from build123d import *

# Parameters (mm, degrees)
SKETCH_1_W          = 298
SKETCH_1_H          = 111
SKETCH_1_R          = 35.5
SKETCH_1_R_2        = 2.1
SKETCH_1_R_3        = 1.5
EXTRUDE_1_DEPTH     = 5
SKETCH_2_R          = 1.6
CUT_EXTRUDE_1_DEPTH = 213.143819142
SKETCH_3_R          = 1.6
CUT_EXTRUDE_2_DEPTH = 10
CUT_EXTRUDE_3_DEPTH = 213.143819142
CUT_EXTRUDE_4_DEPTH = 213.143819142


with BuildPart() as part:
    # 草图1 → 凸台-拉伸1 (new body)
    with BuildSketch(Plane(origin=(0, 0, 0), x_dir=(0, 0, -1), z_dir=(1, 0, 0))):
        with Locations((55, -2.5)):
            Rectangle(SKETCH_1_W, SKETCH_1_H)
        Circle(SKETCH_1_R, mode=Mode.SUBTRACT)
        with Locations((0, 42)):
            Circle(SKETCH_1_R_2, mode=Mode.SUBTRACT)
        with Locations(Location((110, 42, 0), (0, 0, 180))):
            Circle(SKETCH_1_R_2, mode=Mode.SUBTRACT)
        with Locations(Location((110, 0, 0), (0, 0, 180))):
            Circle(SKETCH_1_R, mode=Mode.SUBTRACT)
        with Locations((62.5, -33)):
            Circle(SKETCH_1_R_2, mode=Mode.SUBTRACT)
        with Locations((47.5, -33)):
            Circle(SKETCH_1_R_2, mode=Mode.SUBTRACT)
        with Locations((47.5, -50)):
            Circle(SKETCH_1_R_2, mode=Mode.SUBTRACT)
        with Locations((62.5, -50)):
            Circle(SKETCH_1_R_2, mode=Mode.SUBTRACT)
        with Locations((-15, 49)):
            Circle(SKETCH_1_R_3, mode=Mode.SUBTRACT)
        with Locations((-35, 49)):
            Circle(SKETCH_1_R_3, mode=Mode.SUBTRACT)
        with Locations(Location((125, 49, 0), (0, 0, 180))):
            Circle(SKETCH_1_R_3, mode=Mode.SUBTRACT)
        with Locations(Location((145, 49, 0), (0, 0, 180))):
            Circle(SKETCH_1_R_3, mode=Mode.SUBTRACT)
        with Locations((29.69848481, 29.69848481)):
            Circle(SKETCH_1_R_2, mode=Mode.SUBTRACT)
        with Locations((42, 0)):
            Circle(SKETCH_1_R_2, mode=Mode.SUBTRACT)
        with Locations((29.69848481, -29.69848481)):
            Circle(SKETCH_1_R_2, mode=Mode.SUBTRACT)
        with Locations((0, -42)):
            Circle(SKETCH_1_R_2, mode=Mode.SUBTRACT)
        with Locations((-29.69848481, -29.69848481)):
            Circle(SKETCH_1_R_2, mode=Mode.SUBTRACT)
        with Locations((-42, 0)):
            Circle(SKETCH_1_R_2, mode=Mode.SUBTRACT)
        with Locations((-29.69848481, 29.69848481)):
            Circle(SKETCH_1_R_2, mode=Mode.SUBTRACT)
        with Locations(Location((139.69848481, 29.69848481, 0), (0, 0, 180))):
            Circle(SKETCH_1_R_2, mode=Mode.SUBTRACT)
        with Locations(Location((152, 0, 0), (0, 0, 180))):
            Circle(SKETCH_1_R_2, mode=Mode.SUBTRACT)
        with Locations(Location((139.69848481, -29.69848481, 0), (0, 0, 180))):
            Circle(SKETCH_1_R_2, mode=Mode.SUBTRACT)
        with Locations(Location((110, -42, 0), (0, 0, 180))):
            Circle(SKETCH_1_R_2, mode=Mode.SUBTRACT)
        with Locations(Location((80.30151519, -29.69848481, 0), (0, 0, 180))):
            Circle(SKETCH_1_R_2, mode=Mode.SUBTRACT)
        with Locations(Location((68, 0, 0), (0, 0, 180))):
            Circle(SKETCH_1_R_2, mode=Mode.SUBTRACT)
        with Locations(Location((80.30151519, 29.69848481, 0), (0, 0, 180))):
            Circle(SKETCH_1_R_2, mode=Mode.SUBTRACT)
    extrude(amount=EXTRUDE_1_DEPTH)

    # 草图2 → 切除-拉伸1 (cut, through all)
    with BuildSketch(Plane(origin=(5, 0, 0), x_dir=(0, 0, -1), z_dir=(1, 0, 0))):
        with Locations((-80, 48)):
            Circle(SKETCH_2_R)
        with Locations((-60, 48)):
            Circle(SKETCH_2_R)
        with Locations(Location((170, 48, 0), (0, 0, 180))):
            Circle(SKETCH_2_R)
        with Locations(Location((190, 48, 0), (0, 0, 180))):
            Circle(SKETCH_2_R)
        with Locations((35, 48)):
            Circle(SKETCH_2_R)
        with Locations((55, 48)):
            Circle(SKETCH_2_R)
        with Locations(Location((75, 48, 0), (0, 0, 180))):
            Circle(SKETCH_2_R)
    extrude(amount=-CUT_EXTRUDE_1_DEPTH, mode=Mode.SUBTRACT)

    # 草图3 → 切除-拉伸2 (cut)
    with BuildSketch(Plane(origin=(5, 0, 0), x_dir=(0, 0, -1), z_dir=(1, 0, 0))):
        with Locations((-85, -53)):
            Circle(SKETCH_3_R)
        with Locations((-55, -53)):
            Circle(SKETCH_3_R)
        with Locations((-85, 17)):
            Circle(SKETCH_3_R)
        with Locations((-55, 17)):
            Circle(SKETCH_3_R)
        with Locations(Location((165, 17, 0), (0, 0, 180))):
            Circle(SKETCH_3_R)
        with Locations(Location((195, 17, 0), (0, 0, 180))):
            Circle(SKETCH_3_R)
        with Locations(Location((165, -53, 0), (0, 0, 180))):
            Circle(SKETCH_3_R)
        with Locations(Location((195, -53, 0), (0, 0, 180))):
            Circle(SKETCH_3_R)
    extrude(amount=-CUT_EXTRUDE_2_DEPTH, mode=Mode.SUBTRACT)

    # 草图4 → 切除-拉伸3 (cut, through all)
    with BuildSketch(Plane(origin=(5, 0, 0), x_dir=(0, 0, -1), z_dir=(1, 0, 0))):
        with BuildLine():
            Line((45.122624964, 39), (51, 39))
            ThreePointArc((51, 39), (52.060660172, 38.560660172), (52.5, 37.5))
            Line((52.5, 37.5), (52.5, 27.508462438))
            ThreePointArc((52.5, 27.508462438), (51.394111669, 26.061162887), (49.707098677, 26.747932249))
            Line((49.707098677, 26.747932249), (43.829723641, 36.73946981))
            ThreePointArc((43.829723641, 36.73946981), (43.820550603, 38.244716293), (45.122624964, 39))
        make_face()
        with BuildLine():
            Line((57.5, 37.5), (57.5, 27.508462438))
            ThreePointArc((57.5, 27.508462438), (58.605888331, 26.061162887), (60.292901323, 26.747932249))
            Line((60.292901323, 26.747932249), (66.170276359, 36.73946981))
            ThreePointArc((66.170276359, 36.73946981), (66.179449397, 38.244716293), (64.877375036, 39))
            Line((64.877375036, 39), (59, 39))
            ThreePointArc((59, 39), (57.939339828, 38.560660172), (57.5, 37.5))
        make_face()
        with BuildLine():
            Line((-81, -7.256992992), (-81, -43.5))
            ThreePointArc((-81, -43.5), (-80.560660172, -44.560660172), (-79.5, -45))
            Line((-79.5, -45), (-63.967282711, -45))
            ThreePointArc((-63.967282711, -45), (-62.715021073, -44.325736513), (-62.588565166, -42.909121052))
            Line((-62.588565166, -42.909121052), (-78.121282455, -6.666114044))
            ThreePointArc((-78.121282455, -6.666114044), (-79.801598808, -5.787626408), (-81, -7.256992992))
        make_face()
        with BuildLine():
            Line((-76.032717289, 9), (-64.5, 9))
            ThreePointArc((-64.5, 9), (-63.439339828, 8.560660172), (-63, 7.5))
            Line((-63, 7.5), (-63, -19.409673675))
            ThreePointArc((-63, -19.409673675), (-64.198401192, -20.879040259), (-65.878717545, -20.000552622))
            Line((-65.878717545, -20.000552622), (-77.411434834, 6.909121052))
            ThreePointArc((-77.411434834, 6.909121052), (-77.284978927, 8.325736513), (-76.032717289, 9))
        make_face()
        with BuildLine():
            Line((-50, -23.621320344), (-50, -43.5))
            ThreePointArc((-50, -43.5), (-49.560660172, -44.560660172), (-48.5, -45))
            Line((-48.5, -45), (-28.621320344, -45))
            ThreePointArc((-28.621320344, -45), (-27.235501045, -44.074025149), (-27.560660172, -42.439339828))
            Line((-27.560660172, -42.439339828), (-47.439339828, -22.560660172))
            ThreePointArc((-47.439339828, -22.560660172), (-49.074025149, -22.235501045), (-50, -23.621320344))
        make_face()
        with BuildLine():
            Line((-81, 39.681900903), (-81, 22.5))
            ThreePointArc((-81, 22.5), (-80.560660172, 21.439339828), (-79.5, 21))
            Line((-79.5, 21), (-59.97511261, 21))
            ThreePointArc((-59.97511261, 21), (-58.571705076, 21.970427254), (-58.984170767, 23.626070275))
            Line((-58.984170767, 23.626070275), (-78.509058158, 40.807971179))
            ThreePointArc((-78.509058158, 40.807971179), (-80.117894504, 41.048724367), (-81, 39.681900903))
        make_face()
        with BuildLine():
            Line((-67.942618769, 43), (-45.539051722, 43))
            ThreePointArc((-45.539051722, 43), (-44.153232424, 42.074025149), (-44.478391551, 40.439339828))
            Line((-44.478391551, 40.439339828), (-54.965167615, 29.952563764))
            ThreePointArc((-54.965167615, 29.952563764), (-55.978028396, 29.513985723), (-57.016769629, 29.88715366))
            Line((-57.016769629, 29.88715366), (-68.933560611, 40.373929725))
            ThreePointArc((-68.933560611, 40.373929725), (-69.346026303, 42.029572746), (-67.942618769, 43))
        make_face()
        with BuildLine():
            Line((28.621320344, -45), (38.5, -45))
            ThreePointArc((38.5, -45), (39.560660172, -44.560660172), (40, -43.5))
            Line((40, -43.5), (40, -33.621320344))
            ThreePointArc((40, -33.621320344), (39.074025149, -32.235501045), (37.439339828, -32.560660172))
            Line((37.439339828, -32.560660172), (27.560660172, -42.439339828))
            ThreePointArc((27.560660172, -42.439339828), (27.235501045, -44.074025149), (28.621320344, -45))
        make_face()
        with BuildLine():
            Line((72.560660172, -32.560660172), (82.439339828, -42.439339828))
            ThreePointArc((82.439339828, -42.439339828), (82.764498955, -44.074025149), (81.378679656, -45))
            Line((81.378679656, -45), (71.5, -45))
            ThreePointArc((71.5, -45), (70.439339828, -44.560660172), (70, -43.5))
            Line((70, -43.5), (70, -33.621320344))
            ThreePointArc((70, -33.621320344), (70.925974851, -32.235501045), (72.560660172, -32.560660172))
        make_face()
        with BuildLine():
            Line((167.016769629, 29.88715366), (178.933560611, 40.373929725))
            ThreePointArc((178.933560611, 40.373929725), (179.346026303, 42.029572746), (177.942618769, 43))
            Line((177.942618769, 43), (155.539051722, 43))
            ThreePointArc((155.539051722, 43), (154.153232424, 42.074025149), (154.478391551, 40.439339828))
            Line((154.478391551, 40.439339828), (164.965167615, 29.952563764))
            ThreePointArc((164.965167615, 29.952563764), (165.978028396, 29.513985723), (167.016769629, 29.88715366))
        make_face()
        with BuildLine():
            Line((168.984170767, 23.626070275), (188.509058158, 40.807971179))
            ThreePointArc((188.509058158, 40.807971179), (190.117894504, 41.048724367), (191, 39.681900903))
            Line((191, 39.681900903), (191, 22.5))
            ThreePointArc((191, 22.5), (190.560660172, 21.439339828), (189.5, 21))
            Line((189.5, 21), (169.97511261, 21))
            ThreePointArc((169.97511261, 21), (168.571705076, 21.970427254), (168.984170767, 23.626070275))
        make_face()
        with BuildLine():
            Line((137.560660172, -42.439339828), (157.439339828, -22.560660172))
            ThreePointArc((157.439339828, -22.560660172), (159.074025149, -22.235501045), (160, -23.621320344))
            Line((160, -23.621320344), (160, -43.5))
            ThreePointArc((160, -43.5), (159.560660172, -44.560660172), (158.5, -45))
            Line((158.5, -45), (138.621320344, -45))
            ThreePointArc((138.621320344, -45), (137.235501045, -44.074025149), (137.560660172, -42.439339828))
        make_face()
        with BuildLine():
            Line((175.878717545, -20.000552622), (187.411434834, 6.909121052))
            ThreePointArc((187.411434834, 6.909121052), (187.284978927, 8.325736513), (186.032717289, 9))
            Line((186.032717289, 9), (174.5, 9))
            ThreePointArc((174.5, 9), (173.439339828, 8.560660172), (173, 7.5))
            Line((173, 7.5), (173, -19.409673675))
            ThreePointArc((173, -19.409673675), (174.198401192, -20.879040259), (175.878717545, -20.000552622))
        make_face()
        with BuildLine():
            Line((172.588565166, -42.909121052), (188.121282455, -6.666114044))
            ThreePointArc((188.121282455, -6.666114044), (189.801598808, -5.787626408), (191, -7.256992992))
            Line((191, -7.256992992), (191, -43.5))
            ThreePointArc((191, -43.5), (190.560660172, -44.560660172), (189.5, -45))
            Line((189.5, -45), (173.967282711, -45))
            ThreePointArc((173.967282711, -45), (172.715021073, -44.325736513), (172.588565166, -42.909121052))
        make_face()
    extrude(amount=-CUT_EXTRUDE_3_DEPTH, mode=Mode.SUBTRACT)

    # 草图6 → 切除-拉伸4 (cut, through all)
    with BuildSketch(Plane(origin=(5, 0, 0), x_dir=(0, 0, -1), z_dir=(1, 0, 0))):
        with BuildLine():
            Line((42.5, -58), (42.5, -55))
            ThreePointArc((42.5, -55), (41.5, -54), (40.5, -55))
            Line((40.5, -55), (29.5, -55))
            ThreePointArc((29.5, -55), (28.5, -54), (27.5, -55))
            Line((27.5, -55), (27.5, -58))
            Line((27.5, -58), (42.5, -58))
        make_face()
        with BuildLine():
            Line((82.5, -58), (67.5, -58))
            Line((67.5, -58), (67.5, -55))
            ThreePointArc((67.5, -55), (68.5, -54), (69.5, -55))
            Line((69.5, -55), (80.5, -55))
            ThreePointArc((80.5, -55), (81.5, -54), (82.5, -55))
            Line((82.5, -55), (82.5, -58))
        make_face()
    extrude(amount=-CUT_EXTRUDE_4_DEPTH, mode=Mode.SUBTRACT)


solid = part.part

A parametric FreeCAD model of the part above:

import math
import FreeCAD as App
import Part
import Sketcher

V = App.Vector
Q = App.Units.Quantity

doc = App.newDocument("Part")
body = doc.addObject("PartDesign::Body", "Body")

# Sketch on YZ plane
sketch1 = body.newObject("Sketcher::SketchObject", "Sketch")
sketch1.AttachmentSupport = (doc.getObject("YZ_Plane"), [""])
sketch1.MapMode = "FlatFace"
sketch1.addGeometry([
    Part.LineSegment(V(53, 94, 0), V(-58, 94, 0)),  # 0
    Part.LineSegment(V(-58, 94, 0), V(-58, -204, 0)),  # 1
    Part.LineSegment(V(-58, -204, 0), V(53, -204, 0)),  # 2
    Part.LineSegment(V(53, -204, 0), V(53, 94, 0)),  # 3
    Part.Circle(V(-42, 0, 0), V(0, 0, 1), 2.1),  # 4
    Part.Circle(V(-29.7, 29.7, 0), V(0, 0, 1), 2.1),  # 5
    Part.Circle(V(-50, -47.5, 0), V(0, 0, 1), 2.1),  # 6
    Part.Circle(V(-29.7, -29.7, 0), V(0, 0, 1), 2.1),  # 7
    Part.Circle(V(-33, -47.5, 0), V(0, 0, 1), 2.1),  # 8
    Part.Circle(V(-50, -62.5, 0), V(0, 0, 1), 2.1),  # 9
    Part.Circle(V(-33, -62.5, 0), V(0, 0, 1), 2.1),  # 10
    Part.Circle(V(-29.7, -80.3, 0), V(0, 0, 1), 2.1),  # 11
    Part.Circle(V(-42, -110, 0), V(0, 0, 1), 2.1),  # 12
    Part.Circle(V(-29.7, -139.7, 0), V(0, 0, 1), 2.1),  # 13
    Part.Circle(V(0, 42, 0), V(0, 0, 1), 2.1),  # 14
    Part.Circle(V(0, 0, 0), V(0, 0, 1), 35.5),  # 15
    Part.Circle(V(0, -42, 0), V(0, 0, 1), 2.1),  # 16
    Part.Circle(V(29.7, 29.7, 0), V(0, 0, 1), 2.1),  # 17
    Part.Circle(V(49, 35, 0), V(0, 0, 1), 1.5),  # 18
    Part.Circle(V(42, 0, 0), V(0, 0, 1), 2.1),  # 19
    Part.Circle(V(49, 15, 0), V(0, 0, 1), 1.5),  # 20
    Part.Circle(V(29.7, -29.7, 0), V(0, 0, 1), 2.1),  # 21
    Part.Circle(V(0, -68, 0), V(0, 0, 1), 2.1),  # 22
    Part.Circle(V(0, -110, 0), V(0, 0, 1), 35.5),  # 23
    Part.Circle(V(0, -152, 0), V(0, 0, 1), 2.1),  # 24
    Part.Circle(V(29.7, -80.3, 0), V(0, 0, 1), 2.1),  # 25
    Part.Circle(V(29.7, -139.7, 0), V(0, 0, 1), 2.1),  # 26
    Part.Circle(V(42, -110, 0), V(0, 0, 1), 2.1),  # 27
    Part.Circle(V(49, -125, 0), V(0, 0, 1), 1.5),  # 28
    Part.Circle(V(49, -145, 0), V(0, 0, 1), 1.5),  # 29
], False)
sketch1.addConstraint([
    Sketcher.Constraint("Coincident", 0, 2, 1, 1),
    Sketcher.Constraint("Coincident", 1, 2, 2, 1),
    Sketcher.Constraint("Coincident", 2, 2, 3, 1),
    Sketcher.Constraint("Coincident", 3, 2, 0, 1),
    Sketcher.Constraint("Horizontal", 0),
    Sketcher.Constraint("Vertical", 1),
    Sketcher.Constraint("Horizontal", 2),
    Sketcher.Constraint("Vertical", 3),
    Sketcher.Constraint("Coincident", 15, 3, -1, 1),
    Sketcher.Constraint("Equal", 4, 5),
    Sketcher.Constraint("Equal", 5, 6),
    Sketcher.Constraint("Equal", 6, 7),
    Sketcher.Constraint("Equal", 7, 8),
    Sketcher.Constraint("Equal", 8, 9),
    Sketcher.Constraint("Equal", 9, 10),
    Sketcher.Constraint("Equal", 10, 11),
    Sketcher.Constraint("Equal", 11, 12),
    Sketcher.Constraint("Equal", 12, 13),
    Sketcher.Constraint("Equal", 13, 14),
    Sketcher.Constraint("Equal", 14, 16),
    Sketcher.Constraint("Equal", 16, 17),
    Sketcher.Constraint("Equal", 17, 19),
    Sketcher.Constraint("Equal", 18, 20),
    Sketcher.Constraint("Equal", 19, 21),
    Sketcher.Constraint("Equal", 21, 22),
    Sketcher.Constraint("Equal", 15, 23),
    Sketcher.Constraint("Equal", 22, 24),
    Sketcher.Constraint("Equal", 24, 25),
    Sketcher.Constraint("Equal", 25, 26),
    Sketcher.Constraint("Equal", 26, 27),
    Sketcher.Constraint("Equal", 20, 28),
    Sketcher.Constraint("Equal", 28, 29),
    Sketcher.Constraint("Symmetric", 14, 3, 16, 3, -1, 1),
    Sketcher.Constraint("Symmetric", 7, 3, 17, 3, -1, 1),
    Sketcher.Constraint("Symmetric", 4, 3, 19, 3, -1, 1),
    Sketcher.Constraint("Symmetric", 5, 3, 21, 3, -1, 1),
    Sketcher.Constraint("Symmetric", 5, 3, 17, 3, -2),
    Sketcher.Constraint("Symmetric", 11, 3, 25, 3, -2),
    Sketcher.Constraint("Symmetric", 13, 3, 26, 3, -2),
    Sketcher.Constraint("Symmetric", 12, 3, 27, 3, -2),
    Sketcher.Constraint("PointOnObject", 4, 3, -1),
    Sketcher.Constraint("PointOnObject", 14, 3, -2),
    Sketcher.Constraint("PointOnObject", 22, 3, -2),
    Sketcher.Constraint("PointOnObject", 23, 3, -2),
    Sketcher.Constraint("PointOnObject", 24, 3, -2),
    Sketcher.Constraint("Horizontal", 6, 3, 8, 3),
    Sketcher.Constraint("Horizontal", 9, 3, 10, 3),
    Sketcher.Constraint("Horizontal", 12, 3, 23, 3),
    Sketcher.Constraint("Vertical", 6, 3, 9, 3),
    Sketcher.Constraint("Vertical", 8, 3, 10, 3),
    Sketcher.Constraint("Vertical", 7, 3, 11, 3),
    Sketcher.Constraint("Vertical", 4, 3, 12, 3),
    Sketcher.Constraint("Vertical", 11, 3, 13, 3),
    Sketcher.Constraint("Vertical", 18, 3, 20, 3),
    Sketcher.Constraint("Vertical", 20, 3, 28, 3),
    Sketcher.Constraint("Vertical", 28, 3, 29, 3),
    Sketcher.Constraint("Diameter", 15, Q("71 mm")),
    Sketcher.Constraint("Diameter", 18, Q("3 mm")),
    Sketcher.Constraint("Diameter", 4, Q("4.2 mm")),
    Sketcher.Constraint("DistanceX", 0, 2, 0, 1, Q("111 mm")),
    Sketcher.Constraint("DistanceY", 1, 2, 1, 1, Q("298 mm")),
    Sketcher.Constraint("DistanceX", 4, 3, -1, 1, Q("42 mm")),
    Sketcher.Constraint("DistanceX", 6, 3, -1, 1, Q("50 mm")),
    Sketcher.Constraint("DistanceX", 8, 3, -1, 1, Q("33 mm")),
    Sketcher.Constraint("DistanceY", 12, 3, -1, 1, Q("110 mm")),
    Sketcher.Constraint("DistanceY", -1, 1, 14, 3, Q("42 mm")),
    Sketcher.Constraint("DistanceX", -1, 1, 18, 3, Q("49 mm")),
    Sketcher.Constraint("DistanceY", -1, 1, 18, 3, Q("35 mm")),
    Sketcher.Constraint("DistanceY", -1, 1, 20, 3, Q("15 mm")),
    Sketcher.Constraint("DistanceY", 22, 3, -1, 1, Q("68 mm")),
    Sketcher.Constraint("DistanceY", 24, 3, -1, 1, Q("152 mm")),
    Sketcher.Constraint("DistanceY", 28, 3, -1, 1, Q("125 mm")),
    Sketcher.Constraint("DistanceY", 29, 3, -1, 1, Q("145 mm")),
    Sketcher.Constraint("DistanceX", 0, 2, -1, 1, Q("58 mm")),
    Sketcher.Constraint("DistanceY", -1, 1, 0, 2, Q("94 mm")),
    Sketcher.Constraint("DistanceY", 9, 3, 6, 3, Q("15 mm")),
    Sketcher.Constraint("DistanceY", 6, 3, -1, 1, Q("47.5 mm")),
    Sketcher.Constraint("DistanceY", 7, 3, 5, 3, Q("59.39697 mm")),
    Sketcher.Constraint("DistanceY", 11, 3, 7, 3, Q("50.60303 mm")),
    Sketcher.Constraint("DistanceY", 13, 3, 11, 3, Q("59.39697 mm")),
    Sketcher.Constraint("DistanceX", 5, 3, 17, 3, Q("59.39697 mm")),
])
pad1 = body.newObject("PartDesign::Pad", "Pad")
pad1.Profile = sketch1
pad1.Length = 5

# Sketch on YZ plane
sketch2 = body.newObject("Sketcher::SketchObject", "Sketch001")
sketch2.AttachmentSupport = (doc.getObject("YZ_Plane"), [""])
sketch2.MapMode = "FlatFace"
sketch2.AttachmentOffset = App.Placement(V(0, 0, 5), App.Rotation())
sketch2.addGeometry([
    Part.Circle(V(48, 80, 0), V(0, 0, 1), 1.6),  # 0
    Part.Circle(V(48, 60, 0), V(0, 0, 1), 1.6),  # 1
    Part.Circle(V(48, -170, 0), V(0, 0, 1), 1.6),  # 2
    Part.Circle(V(48, -190, 0), V(0, 0, 1), 1.6),  # 3
    Part.Circle(V(48, -35, 0), V(0, 0, 1), 1.6),  # 4
    Part.Circle(V(48, -55, 0), V(0, 0, 1), 1.6),  # 5
    Part.Circle(V(48, -75, 0), V(0, 0, 1), 1.6),  # 6
], False)
sketch2.addConstraint([
    Sketcher.Constraint("Equal", 0, 1),
    Sketcher.Constraint("Equal", 1, 2),
    Sketcher.Constraint("Equal", 2, 3),
    Sketcher.Constraint("Equal", 3, 4),
    Sketcher.Constraint("Equal", 4, 5),
    Sketcher.Constraint("Equal", 5, 6),
    Sketcher.Constraint("Vertical", 0, 3, 1, 3),
    Sketcher.Constraint("Vertical", 1, 3, 2, 3),
    Sketcher.Constraint("Vertical", 2, 3, 3, 3),
    Sketcher.Constraint("Vertical", 3, 3, 4, 3),
    Sketcher.Constraint("Vertical", 4, 3, 5, 3),
    Sketcher.Constraint("Vertical", 5, 3, 6, 3),
    Sketcher.Constraint("Diameter", 0, Q("3.2 mm")),
    Sketcher.Constraint("DistanceX", -1, 1, 0, 3, Q("48 mm")),
    Sketcher.Constraint("DistanceY", -1, 1, 0, 3, Q("80 mm")),
    Sketcher.Constraint("DistanceY", -1, 1, 1, 3, Q("60 mm")),
    Sketcher.Constraint("DistanceY", 2, 3, -1, 1, Q("170 mm")),
    Sketcher.Constraint("DistanceY", 3, 3, -1, 1, Q("190 mm")),
    Sketcher.Constraint("DistanceY", 4, 3, -1, 1, Q("35 mm")),
    Sketcher.Constraint("DistanceY", 5, 3, -1, 1, Q("55 mm")),
    Sketcher.Constraint("DistanceY", 6, 3, -1, 1, Q("75 mm")),
])
pocket1 = body.newObject("PartDesign::Pocket", "Pocket")
pocket1.Profile = sketch2
pocket1.Type = "ThroughAll"

# Sketch on YZ plane
sketch3 = body.newObject("Sketcher::SketchObject", "Sketch002")
sketch3.AttachmentSupport = (doc.getObject("YZ_Plane"), [""])
sketch3.MapMode = "FlatFace"
sketch3.AttachmentOffset = App.Placement(V(0, 0, 5), App.Rotation())
sketch3.addGeometry([
    Part.Circle(V(-53, 85, 0), V(0, 0, 1), 1.6),  # 0
    Part.Circle(V(-53, 55, 0), V(0, 0, 1), 1.6),  # 1
    Part.Circle(V(17, 85, 0), V(0, 0, 1), 1.6),  # 2
    Part.Circle(V(17, 55, 0), V(0, 0, 1), 1.6),  # 3
    Part.Circle(V(17, -165, 0), V(0, 0, 1), 1.6),  # 4
    Part.Circle(V(17, -195, 0), V(0, 0, 1), 1.6),  # 5
    Part.Circle(V(-53, -165, 0), V(0, 0, 1), 1.6),  # 6
    Part.Circle(V(-53, -195, 0), V(0, 0, 1), 1.6),  # 7
], False)
sketch3.addConstraint([
    Sketcher.Constraint("Equal", 0, 1),
    Sketcher.Constraint("Equal", 1, 2),
    Sketcher.Constraint("Equal", 2, 3),
    Sketcher.Constraint("Equal", 3, 4),
    Sketcher.Constraint("Equal", 4, 5),
    Sketcher.Constraint("Equal", 5, 6),
    Sketcher.Constraint("Equal", 6, 7),
    Sketcher.Constraint("Horizontal", 0, 3, 2, 3),
    Sketcher.Constraint("Horizontal", 1, 3, 3, 3),
    Sketcher.Constraint("Horizontal", 4, 3, 6, 3),
    Sketcher.Constraint("Horizontal", 5, 3, 7, 3),
    Sketcher.Constraint("Vertical", 0, 3, 1, 3),
    Sketcher.Constraint("Vertical", 2, 3, 3, 3),
    Sketcher.Constraint("Vertical", 3, 3, 4, 3),
    Sketcher.Constraint("Vertical", 4, 3, 5, 3),
    Sketcher.Constraint("Vertical", 1, 3, 6, 3),
    Sketcher.Constraint("Vertical", 6, 3, 7, 3),
    Sketcher.Constraint("Diameter", 0, Q("3.2 mm")),
    Sketcher.Constraint("DistanceX", 0, 3, -1, 1, Q("53 mm")),
    Sketcher.Constraint("DistanceY", -1, 1, 0, 3, Q("85 mm")),
    Sketcher.Constraint("DistanceY", -1, 1, 1, 3, Q("55 mm")),
    Sketcher.Constraint("DistanceX", -1, 1, 2, 3, Q("17 mm")),
    Sketcher.Constraint("DistanceY", 4, 3, -1, 1, Q("165 mm")),
    Sketcher.Constraint("DistanceY", 5, 3, -1, 1, Q("195 mm")),
])
pocket2 = body.newObject("PartDesign::Pocket", "Pocket001")
pocket2.Profile = sketch3
pocket2.Length = 10

# Sketch on YZ plane
sketch4 = body.newObject("Sketcher::SketchObject", "Sketch003")
sketch4.AttachmentSupport = (doc.getObject("YZ_Plane"), [""])
sketch4.MapMode = "FlatFace"
sketch4.AttachmentOffset = App.Placement(V(0, 0, 5), App.Rotation())
sketch4.addGeometry([
    Part.LineSegment(V(39, -51, 0), V(39, -45.1, 0)),  # 0
    Part.ArcOfCircle(Part.Circle(V(37.5, -45.1, 0), V(0, 0, 1), 1.5), math.radians(0), math.radians(120)),  # 1
    Part.LineSegment(V(36.7, -43.8, 0), V(26.7, -49.7, 0)),  # 2
    Part.ArcOfCircle(Part.Circle(V(27.5, -51, 0), V(0, 0, 1), 1.5), math.radians(120), math.radians(270)),  # 3
    Part.LineSegment(V(27.5, -52.5, 0), V(37.5, -52.5, 0)),  # 4
    Part.ArcOfCircle(Part.Circle(V(37.5, -51, 0), V(0, 0, 1), 1.5), math.radians(-90), math.radians(0)),  # 5
    Part.LineSegment(V(37.5, -57.5, 0), V(27.5, -57.5, 0)),  # 6
    Part.ArcOfCircle(Part.Circle(V(27.5, -59, 0), V(0, 0, 1), 1.5), math.radians(90), math.radians(240)),  # 7
    Part.LineSegment(V(26.7, -60.3, 0), V(36.7, -66.2, 0)),  # 8
    Part.ArcOfCircle(Part.Circle(V(37.5, -64.9, 0), V(0, 0, 1), 1.5), math.radians(-120), math.radians(0)),  # 9
    Part.LineSegment(V(39, -64.9, 0), V(39, -59, 0)),  # 10
    Part.ArcOfCircle(Part.Circle(V(37.5, -59, 0), V(0, 0, 1), 1.5), math.radians(0), math.radians(90)),  # 11
    Part.LineSegment(V(-7.3, 81, 0), V(-43.5, 81, 0)),  # 12
    Part.ArcOfCircle(Part.Circle(V(-43.5, 79.5, 0), V(0, 0, 1), 1.5), math.radians(90), math.radians(180)),  # 13
    Part.LineSegment(V(-45, 79.5, 0), V(-45, 64, 0)),  # 14
    Part.ArcOfCircle(Part.Circle(V(-43.5, 64, 0), V(0, 0, 1), 1.5), math.radians(-180), math.radians(-67)),  # 15
    Part.LineSegment(V(-42.9, 62.6, 0), V(-6.7, 78.1, 0)),  # 16
    Part.ArcOfCircle(Part.Circle(V(-7.3, 79.5, 0), V(0, 0, 1), 1.5), math.radians(-67), math.radians(90)),  # 17
    Part.LineSegment(V(9, 64.5, 0), V(9, 76, 0)),  # 18
    Part.ArcOfCircle(Part.Circle(V(7.5, 76, 0), V(0, 0, 1), 1.5), math.radians(0), math.radians(113)),  # 19
    Part.LineSegment(V(6.9, 77.4, 0), V(-20, 65.9, 0)),  # 20
    Part.ArcOfCircle(Part.Circle(V(-19.4, 64.5, 0), V(0, 0, 1), 1.5), math.radians(113), math.radians(270)),  # 21
    Part.LineSegment(V(-19.4, 63, 0), V(7.5, 63, 0)),  # 22
    Part.ArcOfCircle(Part.Circle(V(7.5, 64.5, 0), V(0, 0, 1), 1.5), math.radians(-90), math.radians(0)),  # 23
    Part.LineSegment(V(-23.6, 50, 0), V(-43.5, 50, 0)),  # 24
    Part.ArcOfCircle(Part.Circle(V(-43.5, 48.5, 0), V(0, 0, 1), 1.5), math.radians(90), math.radians(180)),  # 25
    Part.LineSegment(V(-45, 48.5, 0), V(-45, 28.6, 0)),  # 26
    Part.ArcOfCircle(Part.Circle(V(-43.5, 28.6, 0), V(0, 0, 1), 1.5), math.radians(180), math.radians(315)),  # 27
    Part.LineSegment(V(-42.4, 27.6, 0), V(-22.6, 47.4, 0)),  # 28
    Part.ArcOfCircle(Part.Circle(V(-23.6, 48.5, 0), V(0, 0, 1), 1.5), math.radians(-45), math.radians(90)),  # 29
    Part.LineSegment(V(39.7, 81, 0), V(22.5, 81, 0)),  # 30
    Part.ArcOfCircle(Part.Circle(V(22.5, 79.5, 0), V(0, 0, 1), 1.5), math.radians(90), math.radians(180)),  # 31
    Part.LineSegment(V(21, 79.5, 0), V(21, 60, 0)),  # 32
    Part.ArcOfCircle(Part.Circle(V(22.5, 60, 0), V(0, 0, 1), 1.5), math.radians(180), math.radians(319)),  # 33
    Part.LineSegment(V(23.6, 59, 0), V(40.8, 78.5, 0)),  # 34
    Part.ArcOfCircle(Part.Circle(V(39.7, 79.5, 0), V(0, 0, 1), 1.5), math.radians(-41), math.radians(90)),  # 35
    Part.LineSegment(V(43, 45.5, 0), V(43, 67.9, 0)),  # 36
    Part.ArcOfCircle(Part.Circle(V(41.5, 67.9, 0), V(0, 0, 1), 1.5), math.radians(0), math.radians(139)),  # 37
    Part.LineSegment(V(40.4, 68.9, 0), V(29.9, 57, 0)),  # 38
    Part.ArcOfCircle(Part.Circle(V(31, 56, 0), V(0, 0, 1), 1.5), math.radians(139), math.radians(225)),  # 39
    Part.LineSegment(V(30, 55, 0), V(40.4, 44.5, 0)),  # 40
    Part.ArcOfCircle(Part.Circle(V(41.5, 45.5, 0), V(0, 0, 1), 1.5), math.radians(-135), math.radians(0)),  # 41
    Part.LineSegment(V(-45, -28.6, 0), V(-45, -38.5, 0)),  # 42
    Part.ArcOfCircle(Part.Circle(V(-43.5, -38.5, 0), V(0, 0, 1), 1.5), math.radians(180), math.radians(270)),  # 43
    Part.LineSegment(V(-43.5, -40, 0), V(-33.6, -40, 0)),  # 44
    Part.ArcOfCircle(Part.Circle(V(-33.6, -38.5, 0), V(0, 0, 1), 1.5), math.radians(-90), math.radians(45)),  # 45
    Part.LineSegment(V(-32.6, -37.4, 0), V(-42.4, -27.6, 0)),  # 46
    Part.ArcOfCircle(Part.Circle(V(-43.5, -28.6, 0), V(0, 0, 1), 1.5), math.radians(45), math.radians(180)),  # 47
    Part.LineSegment(V(-42.4, -82.4, 0), V(-32.6, -72.6, 0)),  # 48
    Part.ArcOfCircle(Part.Circle(V(-33.6, -71.5, 0), V(0, 0, 1), 1.5), math.radians(-45), math.radians(90)),  # 49
    Part.LineSegment(V(-33.6, -70, 0), V(-43.5, -70, 0)),  # 50
    Part.ArcOfCircle(Part.Circle(V(-43.5, -71.5, 0), V(0, 0, 1), 1.5), math.radians(90), math.radians(180)),  # 51
    Part.LineSegment(V(-45, -71.5, 0), V(-45, -81.4, 0)),  # 52
    Part.ArcOfCircle(Part.Circle(V(-43.5, -81.4, 0), V(0, 0, 1), 1.5), math.radians(180), math.radians(315)),  # 53
    Part.LineSegment(V(29.9, -167, 0), V(40.4, -178.9, 0)),  # 54
    Part.ArcOfCircle(Part.Circle(V(41.5, -177.9, 0), V(0, 0, 1), 1.5), math.radians(-139), math.radians(0)),  # 55
    Part.LineSegment(V(43, -177.9, 0), V(43, -155.5, 0)),  # 56
    Part.ArcOfCircle(Part.Circle(V(41.5, -155.5, 0), V(0, 0, 1), 1.5), math.radians(0), math.radians(135)),  # 57
    Part.LineSegment(V(40.4, -154.5, 0), V(30, -165, 0)),  # 58
    Part.ArcOfCircle(Part.Circle(V(31, -166, 0), V(0, 0, 1), 1.5), math.radians(135), math.radians(221)),  # 59
    Part.LineSegment(V(40.8, -188.5, 0), V(23.6, -169, 0)),  # 60
    Part.ArcOfCircle(Part.Circle(V(22.5, -170, 0), V(0, 0, 1), 1.5), math.radians(41), math.radians(180)),  # 61
    Part.LineSegment(V(21, -170, 0), V(21, -189.5, 0)),  # 62
    Part.ArcOfCircle(Part.Circle(V(22.5, -189.5, 0), V(0, 0, 1), 1.5), math.radians(180), math.radians(270)),  # 63
    Part.LineSegment(V(22.5, -191, 0), V(39.7, -191, 0)),  # 64
    Part.ArcOfCircle(Part.Circle(V(39.7, -189.5, 0), V(0, 0, 1), 1.5), math.radians(-90), math.radians(41)),  # 65
    Part.LineSegment(V(-22.6, -157.4, 0), V(-42.4, -137.6, 0)),  # 66
    Part.ArcOfCircle(Part.Circle(V(-43.5, -138.6, 0), V(0, 0, 1), 1.5), math.radians(45), math.radians(180)),  # 67
    Part.LineSegment(V(-45, -138.6, 0), V(-45, -158.5, 0)),  # 68
    Part.ArcOfCircle(Part.Circle(V(-43.5, -158.5, 0), V(0, 0, 1), 1.5), math.radians(180), math.radians(270)),  # 69
    Part.LineSegment(V(-43.5, -160, 0), V(-23.6, -160, 0)),  # 70
    Part.ArcOfCircle(Part.Circle(V(-23.6, -158.5, 0), V(0, 0, 1), 1.5), math.radians(-90), math.radians(45)),  # 71
    Part.LineSegment(V(-20, -175.9, 0), V(6.9, -187.4, 0)),  # 72
    Part.ArcOfCircle(Part.Circle(V(7.5, -186, 0), V(0, 0, 1), 1.5), math.radians(-113), math.radians(0)),  # 73
    Part.LineSegment(V(9, -186, 0), V(9, -174.5, 0)),  # 74
    Part.ArcOfCircle(Part.Circle(V(7.5, -174.5, 0), V(0, 0, 1), 1.5), math.radians(0), math.radians(90)),  # 75
    Part.LineSegment(V(7.5, -173, 0), V(-19.4, -173, 0)),  # 76
    Part.ArcOfCircle(Part.Circle(V(-19.4, -174.5, 0), V(0, 0, 1), 1.5), math.radians(90), math.radians(247)),  # 77
    Part.LineSegment(V(-6.7, -188.1, 0), V(-42.9, -172.6, 0)),  # 78
    Part.ArcOfCircle(Part.Circle(V(-43.5, -174, 0), V(0, 0, 1), 1.5), math.radians(67), math.radians(180)),  # 79
    Part.LineSegment(V(-45, -174, 0), V(-45, -189.5, 0)),  # 80
    Part.ArcOfCircle(Part.Circle(V(-43.5, -189.5, 0), V(0, 0, 1), 1.5), math.radians(180), math.radians(270)),  # 81
    Part.LineSegment(V(-43.5, -191, 0), V(-7.3, -191, 0)),  # 82
    Part.ArcOfCircle(Part.Circle(V(-7.3, -189.5, 0), V(0, 0, 1), 1.5), math.radians(-90), math.radians(67)),  # 83
], False)
sketch4.addConstraint([
    Sketcher.Constraint("Tangent", 0, 2, 1, 1),
    Sketcher.Constraint("Tangent", 1, 2, 2, 1),
    Sketcher.Constraint("Tangent", 2, 2, 3, 1),
    Sketcher.Constraint("Tangent", 3, 2, 4, 1),
    Sketcher.Constraint("Tangent", 4, 2, 5, 1),
    Sketcher.Constraint("Tangent", 5, 2, 0, 1),
    Sketcher.Constraint("Tangent", 6, 2, 7, 1),
    Sketcher.Constraint("Tangent", 7, 2, 8, 1),
    Sketcher.Constraint("Tangent", 8, 2, 9, 1),
    Sketcher.Constraint("Tangent", 9, 2, 10, 1),
    Sketcher.Constraint("Tangent", 10, 2, 11, 1),
    Sketcher.Constraint("Tangent", 11, 2, 6, 1),
    Sketcher.Constraint("Tangent", 12, 2, 13, 1),
    Sketcher.Constraint("Tangent", 13, 2, 14, 1),
    Sketcher.Constraint("Tangent", 14, 2, 15, 1),
    Sketcher.Constraint("Tangent", 15, 2, 16, 1),
    Sketcher.Constraint("Tangent", 16, 2, 17, 1),
    Sketcher.Constraint("Tangent", 17, 2, 12, 1),
    Sketcher.Constraint("Tangent", 18, 2, 19, 1),
    Sketcher.Constraint("Tangent", 19, 2, 20, 1),
    Sketcher.Constraint("Tangent", 20, 2, 21, 1),
    Sketcher.Constraint("Tangent", 21, 2, 22, 1),
    Sketcher.Constraint("Tangent", 22, 2, 23, 1),
    Sketcher.Constraint("Tangent", 23, 2, 18, 1),
    Sketcher.Constraint("Tangent", 24, 2, 25, 1),
    Sketcher.Constraint("Tangent", 25, 2, 26, 1),
    Sketcher.Constraint("Tangent", 26, 2, 27, 1),
    Sketcher.Constraint("Tangent", 27, 2, 28, 1),
    Sketcher.Constraint("Tangent", 28, 2, 29, 1),
    Sketcher.Constraint("Tangent", 29, 2, 24, 1),
    Sketcher.Constraint("Tangent", 30, 2, 31, 1),
    Sketcher.Constraint("Tangent", 31, 2, 32, 1),
    Sketcher.Constraint("Tangent", 32, 2, 33, 1),
    Sketcher.Constraint("Tangent", 33, 2, 34, 1),
    Sketcher.Constraint("Tangent", 34, 2, 35, 1),
    Sketcher.Constraint("Tangent", 35, 2, 30, 1),
    Sketcher.Constraint("Tangent", 36, 2, 37, 1),
    Sketcher.Constraint("Tangent", 37, 2, 38, 1),
    Sketcher.Constraint("Tangent", 38, 2, 39, 1),
    Sketcher.Constraint("Tangent", 39, 2, 40, 1),
    Sketcher.Constraint("Tangent", 40, 2, 41, 1),
    Sketcher.Constraint("Tangent", 41, 2, 36, 1),
    Sketcher.Constraint("Tangent", 42, 2, 43, 1),
    Sketcher.Constraint("Tangent", 43, 2, 44, 1),
    Sketcher.Constraint("Tangent", 44, 2, 45, 1),
    Sketcher.Constraint("Tangent", 45, 2, 46, 1),
    Sketcher.Constraint("Tangent", 46, 2, 47, 1),
    Sketcher.Constraint("Tangent", 47, 2, 42, 1),
    Sketcher.Constraint("Tangent", 48, 2, 49, 1),
    Sketcher.Constraint("Tangent", 49, 2, 50, 1),
    Sketcher.Constraint("Tangent", 50, 2, 51, 1),
    Sketcher.Constraint("Tangent", 51, 2, 52, 1),
    Sketcher.Constraint("Tangent", 52, 2, 53, 1),
    Sketcher.Constraint("Tangent", 53, 2, 48, 1),
    Sketcher.Constraint("Tangent", 54, 2, 55, 1),
    Sketcher.Constraint("Tangent", 55, 2, 56, 1),
    Sketcher.Constraint("Tangent", 56, 2, 57, 1),
    Sketcher.Constraint("Tangent", 57, 2, 58, 1),
    Sketcher.Constraint("Tangent", 58, 2, 59, 1),
    Sketcher.Constraint("Tangent", 59, 2, 54, 1),
    Sketcher.Constraint("Tangent", 60, 2, 61, 1),
    Sketcher.Constraint("Tangent", 61, 2, 62, 1),
    Sketcher.Constraint("Tangent", 62, 2, 63, 1),
    Sketcher.Constraint("Tangent", 63, 2, 64, 1),
    Sketcher.Constraint("Tangent", 64, 2, 65, 1),
    Sketcher.Constraint("Tangent", 65, 2, 60, 1),
    Sketcher.Constraint("Tangent", 66, 2, 67, 1),
    Sketcher.Constraint("Tangent", 67, 2, 68, 1),
    Sketcher.Constraint("Tangent", 68, 2, 69, 1),
    Sketcher.Constraint("Tangent", 69, 2, 70, 1),
    Sketcher.Constraint("Tangent", 70, 2, 71, 1),
    Sketcher.Constraint("Tangent", 71, 2, 66, 1),
    Sketcher.Constraint("Tangent", 72, 2, 73, 1),
    Sketcher.Constraint("Tangent", 73, 2, 74, 1),
    Sketcher.Constraint("Tangent", 74, 2, 75, 1),
    Sketcher.Constraint("Tangent", 75, 2, 76, 1),
    Sketcher.Constraint("Tangent", 76, 2, 77, 1),
    Sketcher.Constraint("Tangent", 77, 2, 72, 1),
    Sketcher.Constraint("Tangent", 78, 2, 79, 1),
    Sketcher.Constraint("Tangent", 79, 2, 80, 1),
    Sketcher.Constraint("Tangent", 80, 2, 81, 1),
    Sketcher.Constraint("Tangent", 81, 2, 82, 1),
    Sketcher.Constraint("Tangent", 82, 2, 83, 1),
    Sketcher.Constraint("Tangent", 83, 2, 78, 1),
    Sketcher.Constraint("Vertical", 0),
    Sketcher.Constraint("Horizontal", 4),
    Sketcher.Constraint("Horizontal", 6),
    Sketcher.Constraint("Vertical", 10),
    Sketcher.Constraint("Horizontal", 12),
    Sketcher.Constraint("Vertical", 14),
    Sketcher.Constraint("Vertical", 18),
    Sketcher.Constraint("Horizontal", 22),
    Sketcher.Constraint("Horizontal", 24),
    Sketcher.Constraint("Vertical", 26),
    Sketcher.Constraint("Horizontal", 30),
    Sketcher.Constraint("Vertical", 32),
    Sketcher.Constraint("Vertical", 36),
    Sketcher.Constraint("Vertical", 42),
    Sketcher.Constraint("Horizontal", 44),
    Sketcher.Constraint("Horizontal", 50),
    Sketcher.Constraint("Vertical", 52),
    Sketcher.Constraint("Vertical", 56),
    Sketcher.Constraint("Vertical", 62),
    Sketcher.Constraint("Horizontal", 64),
    Sketcher.Constraint("Vertical", 68),
    Sketcher.Constraint("Horizontal", 70),
    Sketcher.Constraint("Vertical", 74),
    Sketcher.Constraint("Horizontal", 76),
    Sketcher.Constraint("Vertical", 80),
    Sketcher.Constraint("Horizontal", 82),
    Sketcher.Constraint("Equal", 1, 3),
    Sketcher.Constraint("Equal", 3, 5),
    Sketcher.Constraint("Equal", 5, 7),
    Sketcher.Constraint("Equal", 7, 9),
    Sketcher.Constraint("Equal", 9, 11),
    Sketcher.Constraint("Equal", 11, 13),
    Sketcher.Constraint("Equal", 13, 15),
    Sketcher.Constraint("Equal", 15, 17),
    Sketcher.Constraint("Equal", 17, 19),
    Sketcher.Constraint("Equal", 19, 21),
    Sketcher.Constraint("Equal", 21, 23),
    Sketcher.Constraint("Equal", 23, 25),
    Sketcher.Constraint("Equal", 25, 27),
    Sketcher.Constraint("Equal", 27, 29),
    Sketcher.Constraint("Equal", 29, 31),
    Sketcher.Constraint("Equal", 31, 33),
    Sketcher.Constraint("Equal", 33, 35),
    Sketcher.Constraint("Equal", 35, 37),
    Sketcher.Constraint("Equal", 37, 39),
    Sketcher.Constraint("Equal", 39, 41),
    Sketcher.Constraint("Equal", 41, 43),
    Sketcher.Constraint("Equal", 43, 45),
    Sketcher.Constraint("Equal", 45, 47),
    Sketcher.Constraint("Equal", 47, 49),
    Sketcher.Constraint("Equal", 49, 51),
    Sketcher.Constraint("Equal", 51, 53),
    Sketcher.Constraint("Equal", 53, 55),
    Sketcher.Constraint("Equal", 55, 57),
    Sketcher.Constraint("Equal", 57, 59),
    Sketcher.Constraint("Equal", 59, 61),
    Sketcher.Constraint("Equal", 61, 63),
    Sketcher.Constraint("Equal", 63, 65),
    Sketcher.Constraint("Equal", 65, 67),
    Sketcher.Constraint("Equal", 67, 69),
    Sketcher.Constraint("Equal", 69, 71),
    Sketcher.Constraint("Equal", 71, 73),
    Sketcher.Constraint("Equal", 73, 75),
    Sketcher.Constraint("Equal", 75, 77),
    Sketcher.Constraint("Equal", 77, 79),
    Sketcher.Constraint("Equal", 79, 81),
    Sketcher.Constraint("Equal", 81, 83),
    Sketcher.Constraint("Symmetric", 27, 3, 47, 3, -1),
    Sketcher.Constraint("Parallel", 16, 20),
    Sketcher.Constraint("Parallel", 34, 38),
    Sketcher.Constraint("Perpendicular", 28, 40),
    Sketcher.Constraint("Parallel", 40, 46),
    Sketcher.Constraint("Perpendicular", 46, 48),
    Sketcher.Constraint("Parallel", 48, 58),
    Sketcher.Constraint("Parallel", 54, 60),
    Sketcher.Constraint("Perpendicular", 58, 66),
    Sketcher.Constraint("Parallel", 72, 78),
    Sketcher.Constraint("Horizontal", 17, 3, 31, 3),
    Sketcher.Constraint("Horizontal", 65, 3, 81, 3),
    Sketcher.Constraint("Vertical", 3, 3, 7, 3),
    Sketcher.Constraint("Vertical", 5, 3, 9, 3),
    Sketcher.Constraint("Vertical", 15, 3, 25, 3),
    Sketcher.Constraint("Vertical", 45, 3, 49, 3),
    Sketcher.Constraint("Vertical", 47, 3, 51, 3),
    Sketcher.Constraint("Vertical", 41, 3, 55, 3),
    Sketcher.Constraint("Vertical", 39, 3, 59, 3),
    Sketcher.Constraint("Vertical", 33, 3, 61, 3),
    Sketcher.Constraint("Vertical", 35, 3, 65, 3),
    Sketcher.Constraint("Vertical", 53, 3, 67, 3),
    Sketcher.Constraint("Vertical", 29, 3, 71, 3),
    Sketcher.Constraint("Vertical", 23, 3, 73, 3),
    Sketcher.Constraint("Vertical", 21, 3, 77, 3),
    Sketcher.Constraint("Vertical", 69, 3, 79, 3),
    Sketcher.Constraint("Vertical", 17, 3, 83, 3),
    Sketcher.Constraint("Vertical", 2, 2, 7, 2),
    Sketcher.Constraint("Vertical", 27, 2, 46, 2),
    Sketcher.Constraint("Vertical", 37, 2, 54, 2),
    Sketcher.Constraint("Vertical", 19, 2, 72, 2),
    Sketcher.Constraint("Radius", 1, Q("1.5 mm")),
    Sketcher.Constraint("DistanceY", 3, 3, -1, 1, Q("51 mm")),
    Sketcher.Constraint("DistanceY", 7, 3, -1, 1, Q("59 mm")),
    Sketcher.Constraint("DistanceX", -1, 1, 0, 2, Q("39 mm")),
    Sketcher.Constraint("DistanceY", -1, 1, 12, 2, Q("81 mm")),
    Sketcher.Constraint("DistanceX", 13, 2, -1, 1, Q("45 mm")),
    Sketcher.Constraint("DistanceX", -1, 1, 18, 2, Q("9 mm")),
    Sketcher.Constraint("DistanceY", -1, 1, 21, 2, Q("63 mm")),
    Sketcher.Constraint("DistanceY", -1, 1, 24, 2, Q("50 mm")),
    Sketcher.Constraint("DistanceX", -1, 1, 31, 2, Q("21 mm")),
    Sketcher.Constraint("DistanceX", -1, 1, 36, 2, Q("43 mm")),
    Sketcher.Constraint("DistanceY", 43, 2, -1, 1, Q("40 mm")),
    Sketcher.Constraint("DistanceY", 49, 2, -1, 1, Q("70 mm")),
    Sketcher.Constraint("DistanceY", 63, 2, -1, 1, Q("191 mm")),
    Sketcher.Constraint("DistanceY", 69, 2, -1, 1, Q("160 mm")),
    Sketcher.Constraint("DistanceY", 75, 2, -1, 1, Q("173 mm")),
    Sketcher.Constraint("DistanceX", 30, 2, 30, 1, Q("17.181901 mm")),
    Sketcher.Constraint("Distance", 28, Q("28.112698 mm")),
    Sketcher.Constraint("DistanceY", 2, 2, -1, 1, Q("49.707099 mm")),
    Sketcher.Constraint("Distance", 34, Q("26.00844 mm")),
    Sketcher.Constraint("Distance", 40, Q("14.830541 mm")),
    Sketcher.Constraint("DistanceX", 4, 1, 4, 2, Q("9.991538 mm")),
    Sketcher.Constraint("DistanceX", 12, 2, 12, 1, Q("36.243007 mm")),
    Sketcher.Constraint("DistanceX", 22, 1, 22, 2, Q("26.909674 mm")),
    Sketcher.Constraint("DistanceY", 14, 2, 14, 1, Q("15.532717 mm")),
    Sketcher.Constraint("DistanceY", -1, 1, 37, 3, Q("67.942619 mm")),
    Sketcher.Constraint("DistanceY", 55, 3, -1, 1, Q("177.942619 mm")),
])
pocket3 = body.newObject("PartDesign::Pocket", "Pocket002")
pocket3.Profile = sketch4
pocket3.Type = "ThroughAll"

# Sketch on YZ plane
sketch5 = body.newObject("Sketcher::SketchObject", "Sketch004")
sketch5.AttachmentSupport = (doc.getObject("YZ_Plane"), [""])
sketch5.MapMode = "FlatFace"
sketch5.AttachmentOffset = App.Placement(V(0, 0, 5), App.Rotation())
sketch5.addGeometry([
    Part.LineSegment(V(-58, -42.5, 0), V(-55, -42.5, 0)),  # 0
    Part.ArcOfCircle(Part.Circle(V(-55, -41.5, 0), V(0, 0, 1), 1), math.radians(-90), math.radians(90)),  # 1
    Part.LineSegment(V(-55, -40.5, 0), V(-55, -29.5, 0)),  # 2
    Part.ArcOfCircle(Part.Circle(V(-55, -28.5, 0), V(0, 0, 1), 1), math.radians(-90), math.radians(90)),  # 3
    Part.LineSegment(V(-55, -27.5, 0), V(-58, -27.5, 0)),  # 4
    Part.LineSegment(V(-58, -27.5, 0), V(-58, -42.5, 0)),  # 5
    Part.LineSegment(V(-58, -67.5, 0), V(-58, -82.5, 0)),  # 6
    Part.LineSegment(V(-58, -82.5, 0), V(-55, -82.5, 0)),  # 7
    Part.ArcOfCircle(Part.Circle(V(-55, -81.5, 0), V(0, 0, 1), 1), math.radians(-90), math.radians(90)),  # 8
    Part.LineSegment(V(-55, -80.5, 0), V(-55, -69.5, 0)),  # 9
    Part.ArcOfCircle(Part.Circle(V(-55, -68.5, 0), V(0, 0, 1), 1), math.radians(-90), math.radians(90)),  # 10
    Part.LineSegment(V(-55, -67.5, 0), V(-58, -67.5, 0)),  # 11
], False)
sketch5.addConstraint([
    Sketcher.Constraint("Tangent", 0, 2, 1, 1),
    Sketcher.Constraint("Coincident", 1, 2, 2, 1),
    Sketcher.Constraint("Coincident", 2, 2, 3, 1),
    Sketcher.Constraint("Tangent", 3, 2, 4, 1),
    Sketcher.Constraint("Coincident", 4, 2, 5, 1),
    Sketcher.Constraint("Coincident", 5, 2, 0, 1),
    Sketcher.Constraint("Coincident", 6, 2, 7, 1),
    Sketcher.Constraint("Tangent", 7, 2, 8, 1),
    Sketcher.Constraint("Coincident", 8, 2, 9, 1),
    Sketcher.Constraint("Coincident", 9, 2, 10, 1),
    Sketcher.Constraint("Tangent", 10, 2, 11, 1),
    Sketcher.Constraint("Coincident", 11, 2, 6, 1),
    Sketcher.Constraint("Horizontal", 0),
    Sketcher.Constraint("Vertical", 2),
    Sketcher.Constraint("Horizontal", 4),
    Sketcher.Constraint("Vertical", 5),
    Sketcher.Constraint("Vertical", 6),
    Sketcher.Constraint("Horizontal", 7),
    Sketcher.Constraint("Vertical", 9),
    Sketcher.Constraint("Horizontal", 11),
    Sketcher.Constraint("Equal", 1, 3),
    Sketcher.Constraint("Equal", 3, 8),
    Sketcher.Constraint("Equal", 8, 10),
    Sketcher.Constraint("Vertical", 1, 3, 3, 3),
    Sketcher.Constraint("Vertical", 3, 3, 8, 3),
    Sketcher.Constraint("Vertical", 8, 3, 10, 3),
    Sketcher.Constraint("Vertical", 0, 2, 1, 2),
    Sketcher.Constraint("Vertical", 5, 2, 6, 2),
    Sketcher.Constraint("Vertical", 7, 2, 8, 2),
    Sketcher.Constraint("Equal", 5, 6),
    Sketcher.Constraint("Radius", 1, Q("1 mm")),
    Sketcher.Constraint("DistanceX", 0, 1, 0, 2, Q("3 mm")),
    Sketcher.Constraint("DistanceY", 2, 1, 2, 2, Q("11 mm")),
    Sketcher.Constraint("DistanceX", 1, 3, -1, 1, Q("55 mm")),
    Sketcher.Constraint("DistanceY", 8, 3, 1, 3, Q("40 mm")),
    Sketcher.Constraint("DistanceY", 1, 3, -1, 1, Q("41.5 mm")),
])
pocket4 = body.newObject("PartDesign::Pocket", "Pocket003")
pocket4.Profile = sketch5
pocket4.Type = "ThroughAll"

doc.recompute()
